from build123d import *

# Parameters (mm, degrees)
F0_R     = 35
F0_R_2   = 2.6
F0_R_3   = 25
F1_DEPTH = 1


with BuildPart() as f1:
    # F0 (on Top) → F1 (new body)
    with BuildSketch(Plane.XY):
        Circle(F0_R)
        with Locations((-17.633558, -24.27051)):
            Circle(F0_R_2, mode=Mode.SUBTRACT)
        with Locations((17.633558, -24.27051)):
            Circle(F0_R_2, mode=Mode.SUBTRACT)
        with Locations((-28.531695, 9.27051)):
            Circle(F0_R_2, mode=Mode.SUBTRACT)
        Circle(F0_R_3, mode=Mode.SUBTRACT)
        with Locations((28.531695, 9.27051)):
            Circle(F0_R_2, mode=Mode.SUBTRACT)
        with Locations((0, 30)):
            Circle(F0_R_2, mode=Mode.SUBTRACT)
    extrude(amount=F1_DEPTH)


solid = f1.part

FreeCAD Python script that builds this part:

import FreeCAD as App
import Part
import Sketcher
from FreeCAD import Vector
Q = App.Units.Quantity

doc = App.newDocument("Part")
params = doc.addObject("Spreadsheet::Sheet", "Params")
for row, (alias, value) in enumerate([
    ("sketch1_diameter", "70 mm"),
    ("sketch1_diameter2", "50 mm"),
    ("sketch1_diameter3", "5.2 mm"),
    ("pad1_length", "1 mm"),
], start=1):
    params.set(f"A{row}", alias)
    params.set(f"B{row}", "=" + value)
    params.setAlias(f"B{row}", alias)

body = doc.addObject("PartDesign::Body", "Body")

# Sketch on XY plane
sketch1 = body.newObject("Sketcher::SketchObject", "Sketch")
sketch1.AttachmentSupport = (doc.getObject("XY_Plane"), [""])
sketch1.MapMode = "FlatFace"
sketch1.addGeometry(Part.Circle(Vector(0, 0, 0), Vector(0, 0, 1), 35), False)
sketch1.addGeometry(Part.Circle(Vector(-17.6, -24.3, 0), Vector(0, 0, 1), 2.6), False)
sketch1.addGeometry(Part.Circle(Vector(17.6, -24.3, 0), Vector(0, 0, 1), 2.6), False)
sketch1.addGeometry(Part.Circle(Vector(0, 0, 0), Vector(0, 0, 1), 25), False)
sketch1.addGeometry(Part.Circle(Vector(-28.5, 9.3, 0), Vector(0, 0, 1), 2.6), False)
sketch1.addGeometry(Part.Circle(Vector(28.5, 9.3, 0), Vector(0, 0, 1), 2.6), False)
sketch1.addGeometry(Part.Circle(Vector(0, 30, 0), Vector(0, 0, 1), 2.6), False)
sketch1.addConstraint(Sketcher.Constraint("Coincident", 0, 3, -1, 1))
sketch1.addConstraint(Sketcher.Constraint("Coincident", 3, 3, -1, 1))
sketch1.addConstraint(Sketcher.Constraint("Equal", 1, 2))
sketch1.addConstraint(Sketcher.Constraint("Equal", 2, 4))
sketch1.addConstraint(Sketcher.Constraint("Equal", 4, 5))
sketch1.addConstraint(Sketcher.Constraint("Equal", 5, 6))
sketch1.addConstraint(Sketcher.Constraint("Symmetric", 1, 3, 2, 3, -2))
sketch1.addConstraint(Sketcher.Constraint("Symmetric", 4, 3, 5, 3, -2))
sketch1.addConstraint(Sketcher.Constraint("PointOnObject", 6, 3, -2))
sketch1.addConstraint(Sketcher.Constraint("Diameter", 0, Q("70 mm")))
sketch1.addConstraint(Sketcher.Constraint("Diameter", 3, Q("50 mm")))
sketch1.addConstraint(Sketcher.Constraint("Diameter", 1, Q("5.2 mm")))
sketch1.addConstraint(Sketcher.Constraint("DistanceY", -1, 1, 6, 3, Q("30 mm")))
sketch1.addConstraint(Sketcher.Constraint("DistanceX", 1, 3, -1, 1, Q("17.633558 mm")))
sketch1.addConstraint(Sketcher.Constraint("DistanceY", 1, 3, -1, 1, Q("24.27051 mm")))
sketch1.addConstraint(Sketcher.Constraint("DistanceY", -1, 1, 4, 3, Q("9.27051 mm")))
sketch1.addConstraint(Sketcher.Constraint("DistanceX", 4, 3, 5, 3, Q("57.06339 mm")))
sketch1.setExpression("Constraints[9]", "Params.sketch1_diameter")
sketch1.setExpression("Constraints[10]", "Params.sketch1_diameter2")
sketch1.setExpression("Constraints[11]", "Params.sketch1_diameter3")
pad1 = body.newObject("PartDesign::Pad", "Pad")
pad1.Profile = sketch1
pad1.setExpression("Length", "Params.pad1_length")

doc.recompute()
